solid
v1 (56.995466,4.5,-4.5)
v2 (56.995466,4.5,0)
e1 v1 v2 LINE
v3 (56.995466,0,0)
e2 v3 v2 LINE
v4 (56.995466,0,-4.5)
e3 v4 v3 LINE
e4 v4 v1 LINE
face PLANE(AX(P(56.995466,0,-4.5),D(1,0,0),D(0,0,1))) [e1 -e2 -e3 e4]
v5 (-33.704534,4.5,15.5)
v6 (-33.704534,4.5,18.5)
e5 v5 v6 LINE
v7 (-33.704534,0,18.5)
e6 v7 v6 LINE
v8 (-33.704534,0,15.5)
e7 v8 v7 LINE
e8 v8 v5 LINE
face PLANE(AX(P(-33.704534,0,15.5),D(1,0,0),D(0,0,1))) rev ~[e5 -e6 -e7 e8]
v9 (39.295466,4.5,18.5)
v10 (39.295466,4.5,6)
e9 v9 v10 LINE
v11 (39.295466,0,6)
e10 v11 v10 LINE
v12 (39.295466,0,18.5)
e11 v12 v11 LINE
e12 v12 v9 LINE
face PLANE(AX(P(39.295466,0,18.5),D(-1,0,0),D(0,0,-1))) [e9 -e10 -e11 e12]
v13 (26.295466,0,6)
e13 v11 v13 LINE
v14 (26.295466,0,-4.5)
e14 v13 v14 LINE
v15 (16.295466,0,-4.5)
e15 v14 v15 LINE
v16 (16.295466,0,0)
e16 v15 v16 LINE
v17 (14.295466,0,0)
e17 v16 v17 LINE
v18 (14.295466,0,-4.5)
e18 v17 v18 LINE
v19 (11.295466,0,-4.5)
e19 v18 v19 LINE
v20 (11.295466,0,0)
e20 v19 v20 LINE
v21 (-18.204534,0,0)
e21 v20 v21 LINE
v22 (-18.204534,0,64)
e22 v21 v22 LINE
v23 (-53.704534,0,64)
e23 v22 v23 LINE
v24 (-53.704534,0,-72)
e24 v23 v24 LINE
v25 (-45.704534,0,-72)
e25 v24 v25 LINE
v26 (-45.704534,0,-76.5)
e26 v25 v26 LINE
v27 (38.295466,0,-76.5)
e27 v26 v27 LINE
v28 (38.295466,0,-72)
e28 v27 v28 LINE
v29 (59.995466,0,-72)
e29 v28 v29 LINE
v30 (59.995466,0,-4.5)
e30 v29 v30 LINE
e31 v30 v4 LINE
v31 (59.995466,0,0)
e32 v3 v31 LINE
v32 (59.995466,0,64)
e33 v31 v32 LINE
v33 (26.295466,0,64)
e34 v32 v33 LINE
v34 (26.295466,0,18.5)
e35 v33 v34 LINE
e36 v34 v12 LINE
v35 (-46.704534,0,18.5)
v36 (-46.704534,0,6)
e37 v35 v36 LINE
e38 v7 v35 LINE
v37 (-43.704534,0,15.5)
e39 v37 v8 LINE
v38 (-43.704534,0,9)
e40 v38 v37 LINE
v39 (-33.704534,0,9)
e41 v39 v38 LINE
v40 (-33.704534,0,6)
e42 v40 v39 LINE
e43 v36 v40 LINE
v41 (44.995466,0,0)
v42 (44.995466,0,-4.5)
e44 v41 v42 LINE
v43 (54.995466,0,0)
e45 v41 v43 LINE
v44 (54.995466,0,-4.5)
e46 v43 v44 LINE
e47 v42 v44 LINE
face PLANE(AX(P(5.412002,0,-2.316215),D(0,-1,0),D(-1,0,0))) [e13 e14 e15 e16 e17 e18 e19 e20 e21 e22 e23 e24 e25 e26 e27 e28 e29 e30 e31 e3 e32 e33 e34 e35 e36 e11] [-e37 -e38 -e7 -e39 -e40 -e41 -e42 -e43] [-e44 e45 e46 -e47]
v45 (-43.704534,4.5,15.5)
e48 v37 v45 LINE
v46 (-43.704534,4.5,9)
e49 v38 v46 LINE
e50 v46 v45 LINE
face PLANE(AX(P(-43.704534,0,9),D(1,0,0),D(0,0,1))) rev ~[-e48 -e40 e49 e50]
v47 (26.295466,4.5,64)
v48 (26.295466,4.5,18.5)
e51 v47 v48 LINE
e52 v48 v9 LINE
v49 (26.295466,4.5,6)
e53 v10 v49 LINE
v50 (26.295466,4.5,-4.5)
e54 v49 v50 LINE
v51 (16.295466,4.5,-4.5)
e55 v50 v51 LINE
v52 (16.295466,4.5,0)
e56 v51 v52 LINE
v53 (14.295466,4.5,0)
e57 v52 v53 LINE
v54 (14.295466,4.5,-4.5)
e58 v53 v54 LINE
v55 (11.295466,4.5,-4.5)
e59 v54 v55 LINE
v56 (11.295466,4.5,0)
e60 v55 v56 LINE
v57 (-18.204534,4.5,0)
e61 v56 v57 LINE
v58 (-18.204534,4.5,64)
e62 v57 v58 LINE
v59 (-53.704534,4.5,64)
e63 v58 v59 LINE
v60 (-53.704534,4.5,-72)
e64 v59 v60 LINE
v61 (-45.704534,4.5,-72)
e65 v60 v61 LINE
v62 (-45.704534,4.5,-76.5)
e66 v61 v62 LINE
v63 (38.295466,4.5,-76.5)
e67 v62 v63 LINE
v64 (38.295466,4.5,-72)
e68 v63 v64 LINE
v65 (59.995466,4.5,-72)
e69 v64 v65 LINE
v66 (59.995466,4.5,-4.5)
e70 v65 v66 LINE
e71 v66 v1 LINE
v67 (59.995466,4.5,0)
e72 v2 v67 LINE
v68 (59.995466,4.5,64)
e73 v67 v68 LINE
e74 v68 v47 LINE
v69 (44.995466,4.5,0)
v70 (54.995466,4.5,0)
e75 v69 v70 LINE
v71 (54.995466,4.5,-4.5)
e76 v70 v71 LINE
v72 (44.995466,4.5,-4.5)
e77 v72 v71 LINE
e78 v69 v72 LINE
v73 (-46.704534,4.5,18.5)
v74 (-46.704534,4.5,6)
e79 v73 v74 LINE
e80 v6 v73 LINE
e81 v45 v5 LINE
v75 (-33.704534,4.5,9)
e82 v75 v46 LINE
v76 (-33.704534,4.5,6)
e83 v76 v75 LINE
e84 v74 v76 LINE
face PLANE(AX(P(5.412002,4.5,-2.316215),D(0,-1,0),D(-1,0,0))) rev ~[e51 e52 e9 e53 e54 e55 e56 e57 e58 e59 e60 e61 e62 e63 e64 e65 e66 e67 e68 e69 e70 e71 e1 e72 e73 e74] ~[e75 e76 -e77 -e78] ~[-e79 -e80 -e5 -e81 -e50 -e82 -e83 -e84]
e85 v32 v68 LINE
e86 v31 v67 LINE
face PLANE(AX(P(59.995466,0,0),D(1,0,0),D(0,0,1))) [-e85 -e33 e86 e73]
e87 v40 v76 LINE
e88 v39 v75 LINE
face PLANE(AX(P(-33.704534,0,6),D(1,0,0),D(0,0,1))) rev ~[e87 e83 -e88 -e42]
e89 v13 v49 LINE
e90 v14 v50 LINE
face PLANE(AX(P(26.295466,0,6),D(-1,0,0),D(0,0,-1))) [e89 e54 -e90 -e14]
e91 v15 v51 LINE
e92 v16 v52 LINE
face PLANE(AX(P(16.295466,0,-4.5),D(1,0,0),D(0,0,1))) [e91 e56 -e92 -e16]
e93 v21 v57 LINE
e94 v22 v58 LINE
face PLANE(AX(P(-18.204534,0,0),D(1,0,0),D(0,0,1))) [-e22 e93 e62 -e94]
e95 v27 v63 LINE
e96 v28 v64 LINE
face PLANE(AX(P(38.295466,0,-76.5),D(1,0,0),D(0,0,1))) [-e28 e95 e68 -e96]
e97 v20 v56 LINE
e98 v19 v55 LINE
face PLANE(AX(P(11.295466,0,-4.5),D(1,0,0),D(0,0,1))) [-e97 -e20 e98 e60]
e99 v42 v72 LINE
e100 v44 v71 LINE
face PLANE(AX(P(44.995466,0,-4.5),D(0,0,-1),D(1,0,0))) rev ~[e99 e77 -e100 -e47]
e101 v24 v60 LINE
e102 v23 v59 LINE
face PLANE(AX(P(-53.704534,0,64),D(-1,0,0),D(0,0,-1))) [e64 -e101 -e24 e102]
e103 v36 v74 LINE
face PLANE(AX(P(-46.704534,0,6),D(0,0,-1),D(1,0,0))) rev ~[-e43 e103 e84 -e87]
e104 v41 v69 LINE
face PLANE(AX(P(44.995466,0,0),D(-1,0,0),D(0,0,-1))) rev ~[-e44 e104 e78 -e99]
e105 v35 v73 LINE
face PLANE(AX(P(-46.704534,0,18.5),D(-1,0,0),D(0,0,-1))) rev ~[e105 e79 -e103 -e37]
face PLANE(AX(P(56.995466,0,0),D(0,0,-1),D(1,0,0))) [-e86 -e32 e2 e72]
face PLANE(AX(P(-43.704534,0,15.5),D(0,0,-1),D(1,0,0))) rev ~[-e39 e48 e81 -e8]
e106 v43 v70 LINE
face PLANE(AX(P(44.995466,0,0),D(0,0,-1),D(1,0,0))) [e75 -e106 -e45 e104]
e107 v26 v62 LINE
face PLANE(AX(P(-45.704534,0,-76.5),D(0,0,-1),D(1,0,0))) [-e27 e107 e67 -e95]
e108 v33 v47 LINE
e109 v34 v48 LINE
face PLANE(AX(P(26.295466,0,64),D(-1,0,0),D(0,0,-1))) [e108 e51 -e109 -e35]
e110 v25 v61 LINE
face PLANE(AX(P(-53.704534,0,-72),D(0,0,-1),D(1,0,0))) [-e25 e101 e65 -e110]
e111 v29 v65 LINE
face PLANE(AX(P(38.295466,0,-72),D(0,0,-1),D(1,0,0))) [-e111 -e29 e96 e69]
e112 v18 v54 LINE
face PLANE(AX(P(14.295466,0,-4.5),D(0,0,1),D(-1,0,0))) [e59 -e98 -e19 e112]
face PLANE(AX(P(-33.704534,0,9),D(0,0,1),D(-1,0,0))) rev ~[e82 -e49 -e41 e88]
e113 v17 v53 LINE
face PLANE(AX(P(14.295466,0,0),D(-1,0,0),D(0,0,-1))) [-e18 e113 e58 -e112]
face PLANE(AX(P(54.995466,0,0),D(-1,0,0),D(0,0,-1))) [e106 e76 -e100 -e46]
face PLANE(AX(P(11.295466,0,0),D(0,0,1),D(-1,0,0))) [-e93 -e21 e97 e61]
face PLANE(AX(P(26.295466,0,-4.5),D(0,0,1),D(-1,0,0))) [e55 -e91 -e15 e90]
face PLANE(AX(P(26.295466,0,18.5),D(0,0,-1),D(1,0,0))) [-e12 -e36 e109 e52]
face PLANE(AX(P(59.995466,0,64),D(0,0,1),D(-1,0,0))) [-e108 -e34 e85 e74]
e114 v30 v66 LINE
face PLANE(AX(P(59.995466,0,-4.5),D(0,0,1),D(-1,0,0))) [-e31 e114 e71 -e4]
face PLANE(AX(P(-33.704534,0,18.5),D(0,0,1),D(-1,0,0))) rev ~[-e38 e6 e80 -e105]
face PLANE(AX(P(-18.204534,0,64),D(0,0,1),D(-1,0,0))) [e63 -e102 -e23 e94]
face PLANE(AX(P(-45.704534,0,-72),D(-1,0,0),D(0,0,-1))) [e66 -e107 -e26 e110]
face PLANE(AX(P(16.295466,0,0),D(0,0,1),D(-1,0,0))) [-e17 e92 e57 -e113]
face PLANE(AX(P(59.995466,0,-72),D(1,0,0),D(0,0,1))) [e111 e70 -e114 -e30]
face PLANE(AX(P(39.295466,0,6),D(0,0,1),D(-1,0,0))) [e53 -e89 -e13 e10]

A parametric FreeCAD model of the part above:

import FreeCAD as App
import Part
import Sketcher

V = App.Vector
Q = App.Units.Quantity


def add_polygon(sketch, points):
    """Adds a closed chain of lines whose ends are joined by coincident constraints."""
    first, n = sketch.GeometryCount, len(points)
    for a, b in zip(points, points[1:] + points[:1]):
        sketch.addGeometry(Part.LineSegment(App.Vector(*a, 0), App.Vector(*b, 0)), False)
    for i in range(n):
        sketch.addConstraint(Sketcher.Constraint("Coincident", first + i, 2, first + (i + 1) % n, 1))

doc = App.newDocument("Part")
body = doc.addObject("PartDesign::Body", "Body")

# Sketch on XZ plane
sketch1 = body.newObject("Sketcher::SketchObject", "Sketch")
sketch1.AttachmentSupport = (doc.getObject("XZ_Plane"), [""])
sketch1.MapMode = "FlatFace"
add_polygon(sketch1, [(11.3, 0), (11.3, -4.5), (14.3, -4.5), (14.3, 0), (16.3, 0), (16.3, -4.5), (26.3, -4.5), (26.3, 6), (39.3, 6), (39.3, 18.5), (26.3, 18.5), (26.3, 64), (60, 64), (60, 0), (57, 0), (57, -4.5), (60, -4.5), (60, -72), (38.3, -72), (38.3, -76.5), (-45.7, -76.5), (-45.7, -72), (-53.7, -72), (-53.7, 64), (-18.2, 64), (-18.2, 0)])  # lines 0-25
add_polygon(sketch1, [(-33.7, 15.5), (-33.7, 18.5), (-46.7, 18.5), (-46.7, 6), (-33.7, 6), (-33.7, 9), (-43.7, 9), (-43.7, 15.5)])  # lines 26-33
add_polygon(sketch1, [(45, 0), (45, -4.5), (55, -4.5), (55, 0)])  # lines 34-37
sketch1.addConstraint(Sketcher.Constraint("Vertical", 0))
sketch1.addConstraint(Sketcher.Constraint("Horizontal", 1))
sketch1.addConstraint(Sketcher.Constraint("Vertical", 2))
sketch1.addConstraint(Sketcher.Constraint("Horizontal", 3))
sketch1.addConstraint(Sketcher.Constraint("Vertical", 4))
sketch1.addConstraint(Sketcher.Constraint("Horizontal", 5))
sketch1.addConstraint(Sketcher.Constraint("Vertical", 6))
sketch1.addConstraint(Sketcher.Constraint("Horizontal", 7))
sketch1.addConstraint(Sketcher.Constraint("Vertical", 8))
sketch1.addConstraint(Sketcher.Constraint("Horizontal", 9))
sketch1.addConstraint(Sketcher.Constraint("Vertical", 10))
sketch1.addConstraint(Sketcher.Constraint("Horizontal", 11))
sketch1.addConstraint(Sketcher.Constraint("Vertical", 12))
sketch1.addConstraint(Sketcher.Constraint("Horizontal", 13))
sketch1.addConstraint(Sketcher.Constraint("Vertical", 14))
sketch1.addConstraint(Sketcher.Constraint("Horizontal", 15))
sketch1.addConstraint(Sketcher.Constraint("Vertical", 16))
sketch1.addConstraint(Sketcher.Constraint("Horizontal", 17))
sketch1.addConstraint(Sketcher.Constraint("Vertical", 18))
sketch1.addConstraint(Sketcher.Constraint("Horizontal", 19))
sketch1.addConstraint(Sketcher.Constraint("Vertical", 20))
sketch1.addConstraint(Sketcher.Constraint("Horizontal", 21))
sketch1.addConstraint(Sketcher.Constraint("Vertical", 22))
sketch1.addConstraint(Sketcher.Constraint("Horizontal", 23))
sketch1.addConstraint(Sketcher.Constraint("Vertical", 24))
sketch1.addConstraint(Sketcher.Constraint("Horizontal", 25))
sketch1.addConstraint(Sketcher.Constraint("Vertical", 26))
sketch1.addConstraint(Sketcher.Constraint("Horizontal", 27))
sketch1.addConstraint(Sketcher.Constraint("Vertical", 28))
sketch1.addConstraint(Sketcher.Constraint("Horizontal", 29))
sketch1.addConstraint(Sketcher.Constraint("Vertical", 30))
sketch1.addConstraint(Sketcher.Constraint("Horizontal", 31))
sketch1.addConstraint(Sketcher.Constraint("Vertical", 32))
sketch1.addConstraint(Sketcher.Constraint("Horizontal", 33))
sketch1.addConstraint(Sketcher.Constraint("Vertical", 34))
sketch1.addConstraint(Sketcher.Constraint("Horizontal", 35))
sketch1.addConstraint(Sketcher.Constraint("Vertical", 36))
sketch1.addConstraint(Sketcher.Constraint("Horizontal", 37))
sketch1.addConstraint(Sketcher.Constraint("PointOnObject", 2, 2, -1))
sketch1.addConstraint(Sketcher.Constraint("PointOnObject", 12, 2, -1))
sketch1.addConstraint(Sketcher.Constraint("PointOnObject", 24, 2, -1))
sketch1.addConstraint(Sketcher.Constraint("PointOnObject", 36, 2, -1))
sketch1.addConstraint(Sketcher.Constraint("Horizontal", 1, 2, 4, 2))
sketch1.addConstraint(Sketcher.Constraint("Horizontal", 5, 2, 14, 2))
sketch1.addConstraint(Sketcher.Constraint("Horizontal", 17, 2, 20, 2))
sketch1.addConstraint(Sketcher.Constraint("Horizontal", 11, 2, 22, 2))
sketch1.addConstraint(Sketcher.Constraint("Horizontal", 9, 2, 26, 2))
sketch1.addConstraint(Sketcher.Constraint("Horizontal", 7, 2, 28, 2))
sketch1.addConstraint(Sketcher.Constraint("Horizontal", 15, 2, 34, 2))
sketch1.addConstraint(Sketcher.Constraint("Vertical", 6, 2, 9, 2))
sketch1.addConstraint(Sketcher.Constraint("Vertical", 12, 2, 15, 2))
sketch1.addConstraint(Sketcher.Constraint("Vertical", 26, 2, 29, 2))
sketch1.addConstraint(Sketcher.Constraint("Equal", 1, 13))
sketch1.addConstraint(Sketcher.Constraint("Equal", 9, 27))
sketch1.addConstraint(Sketcher.Constraint("Equal", 5, 31))
sketch1.addConstraint(Sketcher.Constraint("Equal", 33, 35))
sketch1.addConstraint(Sketcher.Constraint("Equal", 14, 18))
sketch1.addConstraint(Sketcher.Constraint("Equal", 15, 26))
sketch1.addConstraint(Sketcher.Constraint("Equal", 26, 30))
sketch1.addConstraint(Sketcher.Constraint("DistanceX", 1, 1, 1, 2, Q("3 mm")))
sketch1.addConstraint(Sketcher.Constraint("DistanceX", 3, 1, 3, 2, Q("2 mm")))
sketch1.addConstraint(Sketcher.Constraint("DistanceX", 5, 1, 5, 2, Q("10 mm")))
sketch1.addConstraint(Sketcher.Constraint("DistanceX", 7, 1, 7, 2, Q("13 mm")))
sketch1.addConstraint(Sketcher.Constraint("DistanceX", 19, 2, 19, 1, Q("84 mm")))
sketch1.addConstraint(Sketcher.Constraint("DistanceX", 21, 2, 21, 1, Q("8 mm")))
sketch1.addConstraint(Sketcher.Constraint("DistanceY", 12, 2, 12, 1, Q("64 mm")))
sketch1.addConstraint(Sketcher.Constraint("DistanceY", 22, 1, 22, 2, Q("136 mm")))
sketch1.addConstraint(Sketcher.Constraint("DistanceX", 11, 1, 11, 2, Q("33.7 mm")))
sketch1.addConstraint(Sketcher.Constraint("DistanceX", 17, 2, 17, 1, Q("21.7 mm")))
sketch1.addConstraint(Sketcher.Constraint("DistanceX", 23, 1, 23, 2, Q("35.5 mm")))
sketch1.addConstraint(Sketcher.Constraint("DistanceY", 0, 2, 0, 1, Q("4.5 mm")))
sketch1.addConstraint(Sketcher.Constraint("DistanceY", 6, 1, 6, 2, Q("10.5 mm")))
sketch1.addConstraint(Sketcher.Constraint("DistanceY", 8, 1, 8, 2, Q("12.5 mm")))
sketch1.addConstraint(Sketcher.Constraint("DistanceX", 26, 2, 25, 2, Q("45 mm")))
sketch1.addConstraint(Sketcher.Constraint("DistanceX", 34, 2, 14, 2, Q("12 mm")))
sketch1.addConstraint(Sketcher.Constraint("DistanceX", -1, 1, 0, 2, Q("11.295466 mm")))
pad1 = body.newObject("PartDesign::Pad", "Pad")
pad1.Profile = sketch1
pad1.Length = 4.5
pad1.Reversed = True

doc.recompute()
